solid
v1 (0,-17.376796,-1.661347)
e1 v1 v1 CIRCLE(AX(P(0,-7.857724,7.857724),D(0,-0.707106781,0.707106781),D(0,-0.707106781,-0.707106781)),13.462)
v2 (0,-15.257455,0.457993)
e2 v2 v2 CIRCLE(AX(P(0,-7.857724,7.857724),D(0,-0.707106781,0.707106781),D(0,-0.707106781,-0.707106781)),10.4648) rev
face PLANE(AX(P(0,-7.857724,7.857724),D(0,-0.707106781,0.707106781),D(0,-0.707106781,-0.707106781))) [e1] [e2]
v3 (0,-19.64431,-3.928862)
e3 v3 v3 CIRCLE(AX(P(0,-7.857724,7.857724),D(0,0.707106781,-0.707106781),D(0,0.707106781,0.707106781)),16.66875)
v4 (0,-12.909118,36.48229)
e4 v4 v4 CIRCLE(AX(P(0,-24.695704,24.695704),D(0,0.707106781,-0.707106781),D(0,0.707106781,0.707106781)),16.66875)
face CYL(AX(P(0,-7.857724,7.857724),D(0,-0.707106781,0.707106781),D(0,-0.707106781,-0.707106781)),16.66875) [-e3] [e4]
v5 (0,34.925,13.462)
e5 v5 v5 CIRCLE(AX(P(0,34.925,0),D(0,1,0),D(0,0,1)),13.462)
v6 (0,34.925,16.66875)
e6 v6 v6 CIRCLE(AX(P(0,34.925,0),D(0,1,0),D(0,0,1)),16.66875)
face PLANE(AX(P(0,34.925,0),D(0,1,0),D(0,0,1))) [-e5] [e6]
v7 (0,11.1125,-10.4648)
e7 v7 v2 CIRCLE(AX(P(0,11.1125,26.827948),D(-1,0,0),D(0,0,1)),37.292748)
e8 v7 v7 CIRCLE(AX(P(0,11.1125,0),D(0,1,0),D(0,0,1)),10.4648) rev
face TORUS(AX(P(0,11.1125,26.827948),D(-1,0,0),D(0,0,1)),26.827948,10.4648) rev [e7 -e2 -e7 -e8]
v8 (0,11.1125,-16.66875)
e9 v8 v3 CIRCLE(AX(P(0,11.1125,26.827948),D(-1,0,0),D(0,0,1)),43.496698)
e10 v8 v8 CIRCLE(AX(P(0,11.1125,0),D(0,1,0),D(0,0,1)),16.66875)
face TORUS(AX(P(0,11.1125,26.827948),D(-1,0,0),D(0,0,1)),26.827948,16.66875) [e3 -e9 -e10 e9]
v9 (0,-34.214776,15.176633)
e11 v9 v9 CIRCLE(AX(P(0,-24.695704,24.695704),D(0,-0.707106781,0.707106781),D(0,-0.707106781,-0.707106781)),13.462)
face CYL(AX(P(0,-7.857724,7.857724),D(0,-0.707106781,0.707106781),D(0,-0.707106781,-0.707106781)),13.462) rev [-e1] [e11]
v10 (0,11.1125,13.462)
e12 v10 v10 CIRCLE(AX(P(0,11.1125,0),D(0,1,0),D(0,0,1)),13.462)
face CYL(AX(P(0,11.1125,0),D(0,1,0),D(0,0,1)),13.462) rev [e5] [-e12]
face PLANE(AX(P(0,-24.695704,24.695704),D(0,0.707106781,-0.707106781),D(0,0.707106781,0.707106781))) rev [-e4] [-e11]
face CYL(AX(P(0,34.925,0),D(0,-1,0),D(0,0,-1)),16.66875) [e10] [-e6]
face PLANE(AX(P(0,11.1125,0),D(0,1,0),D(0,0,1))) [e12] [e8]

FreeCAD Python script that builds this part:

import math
import FreeCAD as App
import Part
import Sketcher

V = App.Vector
Q = App.Units.Quantity

doc = App.newDocument("Part")
body = doc.addObject("PartDesign::Body", "Body")

# Sketch on XZ plane
sketch1 = doc.addObject("Sketcher::SketchObject", "Sketch")
body.addObject(sketch1)
sketch1.AttachmentSupport = (doc.XZ_Plane, [""])
sketch1.MapMode = "FlatFace"
sketch1.AttachmentOffset = App.Placement(V(0, 0, -1.375 * 25.4), App.Rotation())
sketch1.addGeometry([
    Part.Circle(V(0, 0, 0), V(0, 0, 1), 17),
    Part.Circle(V(0, 0, 0), V(0, 0, 1), 10),
], False)
sketch1.addConstraint([
    Sketcher.Constraint("Coincident", 0, 3, -1, 1),
    Sketcher.Constraint("Coincident", 1, 3, -1, 1),
    Sketcher.Constraint("Diameter", 0, Q("1.3125 in")),
    Sketcher.Constraint("Diameter", 1, Q("0.824 in")),
])

# Sketch on YZ plane
sketch2 = doc.addObject("Sketcher::SketchObject", "Sketch001")
body.addObject(sketch2)
sketch2.AttachmentSupport = (doc.YZ_Plane, [""])
sketch2.MapMode = "FlatFace"
sketch2.addGeometry([
    Part.LineSegment(V(-25, 25, 0), V(-8, 8, 0)),
    Part.ArcOfCircle(Part.Circle(V(11, 27, 0), V(0, 0, 1), 27), math.radians(-135), math.radians(-90)),
    Part.LineSegment(V(11, 0, 0), V(35, 0, 0)),
], False)
sketch2.addConstraint([
    Sketcher.Constraint("Tangent", 0, 2, 1, 1),
    Sketcher.Constraint("Tangent", 1, 2, 2, 1),
    Sketcher.Constraint("Horizontal", 2),
    Sketcher.Constraint("PointOnObject", 1, 2, -1),
    Sketcher.Constraint("Angle", 0, Q("-45 deg")),
    Sketcher.Constraint("DistanceX", 2, 1, 2, 2, Q("0.9375 in")),
    Sketcher.Constraint("Distance", 0, Q("0.9375 in")),
    Sketcher.Constraint("DistanceX", -1, 1, 1, 3, Q("0.4375 in")),
    Sketcher.Constraint("Radius", 1, Q("26.827948 mm")),
])
doc.recompute()

additivepipe = doc.addObject("PartDesign::AdditivePipe", "AdditivePipe")
body.addObject(additivepipe)
additivepipe.Profile = sketch1
additivepipe.Spine = (sketch2, ["Edge1", "Edge2", "Edge3"])

# Sketch on XZ plane
sketch3 = doc.addObject("Sketcher::SketchObject", "Sketch002")
body.addObject(sketch3)
sketch3.AttachmentSupport = (doc.XZ_Plane, [""])
sketch3.MapMode = "FlatFace"
sketch3.AttachmentOffset = App.Placement(V(0, 0, -1.375 * 25.4), App.Rotation())
sketch3.addGeometry(Part.Circle(V(0, 0, 0), V(0, 0, 1), 13), False)
sketch3.addConstraint([
    Sketcher.Constraint("Coincident", 0, 3, -1, 1),
    Sketcher.Constraint("Diameter", 0, Q("1.06 in")),
])
pocket1 = doc.addObject("PartDesign::Pocket", "Pocket")
body.addObject(pocket1)
pocket1.Profile = sketch3
pocket1.Length = Q("0.9375 in")
pocket1.Reversed = True

# Sketch on an angled plane
sketch4 = doc.addObject("Sketcher::SketchObject", "Sketch003")
body.addObject(sketch4)
sketch4.Placement = App.Placement(V(0, -24.695704, 24.695704), App.Rotation(V(1, 0, 0), V(0, 0.707106781, 0.707106781), V(0, -0.707106781, 0.707106781), "ZXY"))
sketch4.addGeometry(Part.Circle(V(0, 0, 0), V(0, 0, 1), 13), False)
sketch4.addConstraint([
    Sketcher.Constraint("Coincident", 0, 3, -1, 1),
    Sketcher.Constraint("Diameter", 0, Q("1.06 in")),
])
pocket2 = doc.addObject("PartDesign::Pocket", "Pocket001")
body.addObject(pocket2)
pocket2.Profile = sketch4
pocket2.Length = Q("0.9375 in")

doc.recompute()
